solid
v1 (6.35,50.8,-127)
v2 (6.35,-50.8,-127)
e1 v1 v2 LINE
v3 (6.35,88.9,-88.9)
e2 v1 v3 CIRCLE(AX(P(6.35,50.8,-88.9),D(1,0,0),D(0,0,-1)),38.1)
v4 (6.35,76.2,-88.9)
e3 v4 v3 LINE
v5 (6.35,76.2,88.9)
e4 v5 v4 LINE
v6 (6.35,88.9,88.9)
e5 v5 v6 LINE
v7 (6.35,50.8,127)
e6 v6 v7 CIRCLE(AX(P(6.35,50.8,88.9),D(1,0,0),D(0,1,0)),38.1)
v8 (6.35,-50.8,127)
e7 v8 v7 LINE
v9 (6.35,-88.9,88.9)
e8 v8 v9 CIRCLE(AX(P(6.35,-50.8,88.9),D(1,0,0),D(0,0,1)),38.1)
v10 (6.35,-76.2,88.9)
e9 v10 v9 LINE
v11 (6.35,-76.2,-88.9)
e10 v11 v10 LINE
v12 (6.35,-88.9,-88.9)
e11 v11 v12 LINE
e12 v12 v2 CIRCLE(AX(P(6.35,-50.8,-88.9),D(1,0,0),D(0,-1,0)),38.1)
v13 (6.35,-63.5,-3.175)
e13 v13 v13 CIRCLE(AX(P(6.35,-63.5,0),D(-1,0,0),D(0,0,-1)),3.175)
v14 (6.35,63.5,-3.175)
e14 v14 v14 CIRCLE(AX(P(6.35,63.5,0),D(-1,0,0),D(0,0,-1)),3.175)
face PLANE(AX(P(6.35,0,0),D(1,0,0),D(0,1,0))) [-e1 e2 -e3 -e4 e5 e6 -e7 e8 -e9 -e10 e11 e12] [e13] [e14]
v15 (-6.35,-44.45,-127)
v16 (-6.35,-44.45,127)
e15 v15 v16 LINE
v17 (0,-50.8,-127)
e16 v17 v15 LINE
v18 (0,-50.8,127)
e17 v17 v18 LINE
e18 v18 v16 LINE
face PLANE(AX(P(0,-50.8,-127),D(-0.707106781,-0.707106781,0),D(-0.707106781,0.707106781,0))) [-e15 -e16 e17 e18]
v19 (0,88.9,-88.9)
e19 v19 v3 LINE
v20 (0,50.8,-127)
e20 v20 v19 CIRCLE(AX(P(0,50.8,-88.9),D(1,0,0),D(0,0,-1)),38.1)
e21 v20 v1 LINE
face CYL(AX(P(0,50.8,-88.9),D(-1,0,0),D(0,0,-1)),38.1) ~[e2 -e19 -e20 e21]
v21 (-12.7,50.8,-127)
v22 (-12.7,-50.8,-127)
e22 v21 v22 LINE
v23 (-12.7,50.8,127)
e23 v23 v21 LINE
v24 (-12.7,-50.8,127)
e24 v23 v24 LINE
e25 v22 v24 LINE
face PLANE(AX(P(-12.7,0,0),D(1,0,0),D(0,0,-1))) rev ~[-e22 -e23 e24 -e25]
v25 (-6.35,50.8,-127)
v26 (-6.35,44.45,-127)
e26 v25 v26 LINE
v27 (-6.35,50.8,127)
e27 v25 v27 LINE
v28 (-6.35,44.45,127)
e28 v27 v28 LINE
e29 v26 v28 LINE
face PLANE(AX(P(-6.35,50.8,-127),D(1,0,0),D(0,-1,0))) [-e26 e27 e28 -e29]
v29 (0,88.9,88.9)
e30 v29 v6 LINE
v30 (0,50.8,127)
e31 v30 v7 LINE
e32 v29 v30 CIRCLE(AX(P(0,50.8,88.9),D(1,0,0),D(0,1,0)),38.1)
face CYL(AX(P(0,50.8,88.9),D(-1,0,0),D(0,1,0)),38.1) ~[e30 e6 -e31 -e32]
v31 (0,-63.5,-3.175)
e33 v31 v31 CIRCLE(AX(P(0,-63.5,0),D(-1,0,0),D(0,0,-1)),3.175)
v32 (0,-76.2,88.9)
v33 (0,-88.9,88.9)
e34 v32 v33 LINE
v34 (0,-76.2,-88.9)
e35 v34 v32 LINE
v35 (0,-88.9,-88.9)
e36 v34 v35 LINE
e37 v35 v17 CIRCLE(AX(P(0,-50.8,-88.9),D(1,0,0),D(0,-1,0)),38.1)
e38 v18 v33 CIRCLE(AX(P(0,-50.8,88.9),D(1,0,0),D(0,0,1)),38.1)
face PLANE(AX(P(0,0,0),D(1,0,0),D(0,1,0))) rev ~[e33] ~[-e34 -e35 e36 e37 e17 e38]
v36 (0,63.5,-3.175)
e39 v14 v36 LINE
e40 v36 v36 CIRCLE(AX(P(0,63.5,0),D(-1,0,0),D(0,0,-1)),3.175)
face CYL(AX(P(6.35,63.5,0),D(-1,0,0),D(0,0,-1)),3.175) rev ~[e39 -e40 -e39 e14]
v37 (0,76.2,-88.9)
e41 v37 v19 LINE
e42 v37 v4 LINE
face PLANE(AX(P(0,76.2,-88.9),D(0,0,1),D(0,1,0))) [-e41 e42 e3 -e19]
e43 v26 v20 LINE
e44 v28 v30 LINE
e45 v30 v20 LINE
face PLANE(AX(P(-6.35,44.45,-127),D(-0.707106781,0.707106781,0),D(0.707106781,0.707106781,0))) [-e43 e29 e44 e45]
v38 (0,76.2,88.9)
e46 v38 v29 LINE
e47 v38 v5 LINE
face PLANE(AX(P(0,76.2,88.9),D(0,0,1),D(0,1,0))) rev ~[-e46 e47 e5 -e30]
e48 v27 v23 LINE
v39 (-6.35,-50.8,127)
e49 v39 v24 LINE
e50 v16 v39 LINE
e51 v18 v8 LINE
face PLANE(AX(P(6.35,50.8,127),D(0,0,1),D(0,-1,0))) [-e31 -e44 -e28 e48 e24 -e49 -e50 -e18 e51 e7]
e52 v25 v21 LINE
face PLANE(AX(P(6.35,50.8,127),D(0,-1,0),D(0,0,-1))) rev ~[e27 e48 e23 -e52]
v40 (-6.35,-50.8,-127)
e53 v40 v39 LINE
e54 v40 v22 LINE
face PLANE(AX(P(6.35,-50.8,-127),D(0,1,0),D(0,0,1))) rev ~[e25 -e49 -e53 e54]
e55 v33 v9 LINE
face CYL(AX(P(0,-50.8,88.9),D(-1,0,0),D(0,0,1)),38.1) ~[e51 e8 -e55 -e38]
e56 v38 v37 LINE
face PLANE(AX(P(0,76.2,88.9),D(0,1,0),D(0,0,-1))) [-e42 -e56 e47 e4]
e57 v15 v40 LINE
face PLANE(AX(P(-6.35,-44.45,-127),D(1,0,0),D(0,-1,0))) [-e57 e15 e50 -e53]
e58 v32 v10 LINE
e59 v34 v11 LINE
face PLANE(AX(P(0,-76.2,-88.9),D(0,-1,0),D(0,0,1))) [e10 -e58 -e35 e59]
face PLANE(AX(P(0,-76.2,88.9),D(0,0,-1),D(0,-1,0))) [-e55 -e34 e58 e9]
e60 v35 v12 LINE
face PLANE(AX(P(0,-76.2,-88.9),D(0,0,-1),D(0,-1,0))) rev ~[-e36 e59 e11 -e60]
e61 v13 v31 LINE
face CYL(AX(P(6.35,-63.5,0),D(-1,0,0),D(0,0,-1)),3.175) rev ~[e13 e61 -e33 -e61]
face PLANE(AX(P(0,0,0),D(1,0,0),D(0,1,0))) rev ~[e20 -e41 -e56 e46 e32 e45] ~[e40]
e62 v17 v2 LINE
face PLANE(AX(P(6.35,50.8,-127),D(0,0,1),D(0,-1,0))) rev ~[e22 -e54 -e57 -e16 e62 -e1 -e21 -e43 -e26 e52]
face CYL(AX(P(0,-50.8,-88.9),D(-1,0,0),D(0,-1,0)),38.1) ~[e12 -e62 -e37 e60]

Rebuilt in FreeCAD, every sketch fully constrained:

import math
import FreeCAD as App
import Part
import Sketcher
from FreeCAD import Vector
Q = App.Units.Quantity


def add_polygon(sketch, points):
    """Adds a closed chain of lines whose ends are joined by coincident constraints."""
    first, n = sketch.GeometryCount, len(points)
    for a, b in zip(points, points[1:] + points[:1]):
        sketch.addGeometry(Part.LineSegment(App.Vector(*a, 0), App.Vector(*b, 0)), False)
    for i in range(n):
        sketch.addConstraint(Sketcher.Constraint("Coincident", first + i, 2, first + (i + 1) % n, 1))

doc = App.newDocument("Part")
params = doc.addObject("Spreadsheet::Sheet", "Params")
for row, (alias, value) in enumerate([
    ("sketch1_radius", "1.5 in"),
    ("pad1_length", "0.25 in"),
    ("sketch2_diameter", "0.25 in"),
    ("hole_diameter", "0.25 in"),
    ("sketch3_diameter", "0.25 in"),
    ("hole2_diameter", "0.25 in"),
    ("sketch4_width", "4 in"),
    ("sketch4_height", "10 in"),
    ("pad2_length", "0.75 in"),
    ("sketch5_width", "0.25 in"),
    ("sketch6_width", "0.25 in"),
], start=1):
    params.set(f"A{row}", alias)
    params.set(f"B{row}", "=" + value)
    params.setAlias(f"B{row}", alias)

body = doc.addObject("PartDesign::Body", "Body")

# Sketch on YZ plane
sketch1 = body.newObject("Sketcher::SketchObject", "Sketch")
sketch1.AttachmentSupport = (doc.getObject("YZ_Plane"), [""])
sketch1.MapMode = "FlatFace"
sketch1.addGeometry([
    Part.LineSegment(Vector(51, 127, 0), Vector(-51, 127, 0)),  # 0
    Part.ArcOfCircle(Part.Circle(Vector(-51, 89, 0), Vector(0, 0, 1), 38), math.radians(90), math.radians(180)),  # 1
    Part.LineSegment(Vector(-89, 89, 0), Vector(-76, 89, 0)),  # 2
    Part.LineSegment(Vector(-76, 89, 0), Vector(-76, -89, 0)),  # 3
    Part.LineSegment(Vector(-76, -89, 0), Vector(-89, -89, 0)),  # 4
    Part.ArcOfCircle(Part.Circle(Vector(-51, -89, 0), Vector(0, 0, 1), 38), math.radians(180), math.radians(270)),  # 5
    Part.LineSegment(Vector(-51, -127, 0), Vector(51, -127, 0)),  # 6
    Part.ArcOfCircle(Part.Circle(Vector(51, -89, 0), Vector(0, 0, 1), 38), math.radians(-90), math.radians(0)),  # 7
    Part.LineSegment(Vector(89, -89, 0), Vector(76, -89, 0)),  # 8
    Part.LineSegment(Vector(76, -89, 0), Vector(76, 89, 0)),  # 9
    Part.LineSegment(Vector(76, 89, 0), Vector(89, 89, 0)),  # 10
    Part.ArcOfCircle(Part.Circle(Vector(51, 89, 0), Vector(0, 0, 1), 38), math.radians(0), math.radians(90)),  # 11
], False)
sketch1.addConstraint([
    Sketcher.Constraint("Tangent", 0, 2, 1, 1),
    Sketcher.Constraint("Coincident", 1, 2, 2, 1),
    Sketcher.Constraint("Coincident", 2, 2, 3, 1),
    Sketcher.Constraint("Coincident", 3, 2, 4, 1),
    Sketcher.Constraint("Coincident", 4, 2, 5, 1),
    Sketcher.Constraint("Tangent", 5, 2, 6, 1),
    Sketcher.Constraint("Tangent", 6, 2, 7, 1),
    Sketcher.Constraint("Coincident", 7, 2, 8, 1),
    Sketcher.Constraint("Coincident", 8, 2, 9, 1),
    Sketcher.Constraint("Coincident", 9, 2, 10, 1),
    Sketcher.Constraint("Coincident", 10, 2, 11, 1),
    Sketcher.Constraint("Tangent", 11, 2, 0, 1),
    Sketcher.Constraint("Horizontal", 0),
    Sketcher.Constraint("Horizontal", 2),
    Sketcher.Constraint("Vertical", 3),
    Sketcher.Constraint("Horizontal", 4),
    Sketcher.Constraint("Horizontal", 6),
    Sketcher.Constraint("Horizontal", 8),
    Sketcher.Constraint("Vertical", 9),
    Sketcher.Constraint("Horizontal", 10),
    Sketcher.Constraint("Equal", 1, 5),
    Sketcher.Constraint("Equal", 5, 7),
    Sketcher.Constraint("Equal", 7, 11),
    Sketcher.Constraint("Symmetric", 1, 3, 7, 3, -1, 1),
    Sketcher.Constraint("Symmetric", 2, 2, 8, 2, -1, 1),
    Sketcher.Constraint("Symmetric", 4, 2, 10, 2, -1, 1),
    Sketcher.Constraint("Symmetric", 4, 2, 7, 2, -2),
    Sketcher.Constraint("Horizontal", 11, 3, 1, 2),
    Sketcher.Constraint("Radius", 1, Q("1.5 in")),
    Sketcher.Constraint("DistanceY", -1, 1, 0, 2, Q("5 in")),
    Sketcher.Constraint("DistanceX", 2, 2, -1, 1, Q("3 in")),
    Sketcher.Constraint("DistanceX", 2, 2, 1, 3, Q("1 in")),
])
sketch1.setExpression("Constraints[28]", "Params.sketch1_radius")
pad1 = body.newObject("PartDesign::Pad", "Pad")
pad1.Profile = sketch1
pad1.setExpression("Length", "Params.pad1_length")

# Sketch on YZ plane
sketch2 = body.newObject("Sketcher::SketchObject", "Sketch001")
sketch2.AttachmentSupport = (doc.getObject("YZ_Plane"), [""])
sketch2.MapMode = "FlatFace"
sketch2.AttachmentOffset = App.Placement(Vector(0, 0, 0.25 * 25.4), App.Rotation())
sketch2.addGeometry(Part.Circle(Vector(-63.5, 0, 0), Vector(0, 0, 1), 3.2), False)
sketch2.addConstraint([
    Sketcher.Constraint("PointOnObject", 0, 3, -1),
    Sketcher.Constraint("Diameter", 0, Q("0.25 in")),
    Sketcher.Constraint("DistanceX", 0, 3, -1, 1, Q("2.5 in")),
])
sketch2.setExpression("Constraints[1]", "Params.sketch2_diameter")
doc.recompute()
hole = body.newObject("PartDesign::Hole", "Hole")
hole.Profile = sketch2
hole.ThreadType = "None"
hole.setExpression("Diameter", "Params.hole_diameter")
hole.DepthType = "ThroughAll"

# Sketch on YZ plane
sketch3 = body.newObject("Sketcher::SketchObject", "Sketch002")
sketch3.AttachmentSupport = (doc.getObject("YZ_Plane"), [""])
sketch3.MapMode = "FlatFace"
sketch3.AttachmentOffset = App.Placement(Vector(0, 0, 0.25 * 25.4), App.Rotation())
sketch3.addGeometry(Part.Circle(Vector(63.5, 0, 0), Vector(0, 0, 1), 3.2), False)
sketch3.addConstraint([
    Sketcher.Constraint("PointOnObject", 0, 3, -1),
    Sketcher.Constraint("Diameter", 0, Q("0.25 in")),
    Sketcher.Constraint("DistanceX", -1, 1, 0, 3, Q("2.5 in")),
])
sketch3.setExpression("Constraints[1]", "Params.sketch3_diameter")
doc.recompute()
hole2 = body.newObject("PartDesign::Hole", "Hole001")
hole2.Profile = sketch3
hole2.ThreadType = "None"
hole2.setExpression("Diameter", "Params.hole2_diameter")
hole2.DepthType = "ThroughAll"

# Sketch on YZ plane
sketch4 = body.newObject("Sketcher::SketchObject", "Sketch003")
sketch4.AttachmentSupport = (doc.getObject("YZ_Plane"), [""])
sketch4.MapMode = "FlatFace"
sketch4.AttachmentOffset = App.Placement(Vector(0, 0, 0.25 * 25.4), App.Rotation())
add_polygon(sketch4, [(51, -127), (51, 127), (-51, 127), (-51, -127)])  # lines 0-3
sketch4.addConstraint([
    Sketcher.Constraint("Vertical", 0),
    Sketcher.Constraint("Horizontal", 1),
    Sketcher.Constraint("Vertical", 2),
    Sketcher.Constraint("Horizontal", 3),
    Sketcher.Constraint("Symmetric", 0, 2, 2, 2, -1, 1),
    Sketcher.Constraint("DistanceX", 1, 2, 1, 1, Q("4 in")),
    Sketcher.Constraint("DistanceY", 0, 1, 0, 2, Q("10 in")),
])
sketch4.setExpression("Constraints[9]", "Params.sketch4_width")
sketch4.setExpression("Constraints[10]", "Params.sketch4_height")
pad2 = body.newObject("PartDesign::Pad", "Pad001")
pad2.Profile = sketch4
pad2.setExpression("Length", "Params.pad2_length")
pad2.Reversed = True

# Sketch on XY plane
sketch5 = body.newObject("Sketcher::SketchObject", "Sketch004")
sketch5.AttachmentSupport = (doc.getObject("XY_Plane"), [""])
sketch5.MapMode = "FlatFace"
sketch5.AttachmentOffset = App.Placement(Vector(0, 0, -5 * 25.4), App.Rotation())
add_polygon(sketch5, [(-6, -44), (0, -51), (-6, -51)])  # lines 0-2
sketch5.addConstraint([
    Sketcher.Constraint("Horizontal", 1),
    Sketcher.Constraint("Vertical", 2),
    Sketcher.Constraint("PointOnObject", 0, 2, -2),
    Sketcher.Constraint("Equal", 1, 2),
    Sketcher.Constraint("DistanceX", 1, 2, 1, 1, Q("0.25 in")),
    Sketcher.Constraint("DistanceY", 0, 2, -1, 1, Q("2 in")),
])
sketch5.setExpression("Constraints[7]", "Params.sketch5_width")
pocket1 = body.newObject("PartDesign::Pocket", "Pocket")
pocket1.Profile = sketch5
pocket1.Type = "UpToFirst"
pocket1.Reversed = True

# Sketch on XY plane
sketch6 = body.newObject("Sketcher::SketchObject", "Sketch005")
sketch6.AttachmentSupport = (doc.getObject("XY_Plane"), [""])
sketch6.MapMode = "FlatFace"
sketch6.AttachmentOffset = App.Placement(Vector(0, 0, -5 * 25.4), App.Rotation())
add_polygon(sketch6, [(-6, 51), (0, 51), (-6, 44)])  # lines 0-2
sketch6.addConstraint([
    Sketcher.Constraint("Horizontal", 0),
    Sketcher.Constraint("Vertical", 2),
    Sketcher.Constraint("PointOnObject", 0, 2, -2),
    Sketcher.Constraint("Equal", 0, 2),
    Sketcher.Constraint("DistanceX", 0, 1, 0, 2, Q("0.25 in")),
    Sketcher.Constraint("DistanceY", -1, 1, 0, 2, Q("2 in")),
])
sketch6.setExpression("Constraints[7]", "Params.sketch6_width")
pocket2 = body.newObject("PartDesign::Pocket", "Pocket001")
pocket2.Profile = sketch6
pocket2.Type = "UpToFirst"
pocket2.Reversed = True

doc.recompute()
